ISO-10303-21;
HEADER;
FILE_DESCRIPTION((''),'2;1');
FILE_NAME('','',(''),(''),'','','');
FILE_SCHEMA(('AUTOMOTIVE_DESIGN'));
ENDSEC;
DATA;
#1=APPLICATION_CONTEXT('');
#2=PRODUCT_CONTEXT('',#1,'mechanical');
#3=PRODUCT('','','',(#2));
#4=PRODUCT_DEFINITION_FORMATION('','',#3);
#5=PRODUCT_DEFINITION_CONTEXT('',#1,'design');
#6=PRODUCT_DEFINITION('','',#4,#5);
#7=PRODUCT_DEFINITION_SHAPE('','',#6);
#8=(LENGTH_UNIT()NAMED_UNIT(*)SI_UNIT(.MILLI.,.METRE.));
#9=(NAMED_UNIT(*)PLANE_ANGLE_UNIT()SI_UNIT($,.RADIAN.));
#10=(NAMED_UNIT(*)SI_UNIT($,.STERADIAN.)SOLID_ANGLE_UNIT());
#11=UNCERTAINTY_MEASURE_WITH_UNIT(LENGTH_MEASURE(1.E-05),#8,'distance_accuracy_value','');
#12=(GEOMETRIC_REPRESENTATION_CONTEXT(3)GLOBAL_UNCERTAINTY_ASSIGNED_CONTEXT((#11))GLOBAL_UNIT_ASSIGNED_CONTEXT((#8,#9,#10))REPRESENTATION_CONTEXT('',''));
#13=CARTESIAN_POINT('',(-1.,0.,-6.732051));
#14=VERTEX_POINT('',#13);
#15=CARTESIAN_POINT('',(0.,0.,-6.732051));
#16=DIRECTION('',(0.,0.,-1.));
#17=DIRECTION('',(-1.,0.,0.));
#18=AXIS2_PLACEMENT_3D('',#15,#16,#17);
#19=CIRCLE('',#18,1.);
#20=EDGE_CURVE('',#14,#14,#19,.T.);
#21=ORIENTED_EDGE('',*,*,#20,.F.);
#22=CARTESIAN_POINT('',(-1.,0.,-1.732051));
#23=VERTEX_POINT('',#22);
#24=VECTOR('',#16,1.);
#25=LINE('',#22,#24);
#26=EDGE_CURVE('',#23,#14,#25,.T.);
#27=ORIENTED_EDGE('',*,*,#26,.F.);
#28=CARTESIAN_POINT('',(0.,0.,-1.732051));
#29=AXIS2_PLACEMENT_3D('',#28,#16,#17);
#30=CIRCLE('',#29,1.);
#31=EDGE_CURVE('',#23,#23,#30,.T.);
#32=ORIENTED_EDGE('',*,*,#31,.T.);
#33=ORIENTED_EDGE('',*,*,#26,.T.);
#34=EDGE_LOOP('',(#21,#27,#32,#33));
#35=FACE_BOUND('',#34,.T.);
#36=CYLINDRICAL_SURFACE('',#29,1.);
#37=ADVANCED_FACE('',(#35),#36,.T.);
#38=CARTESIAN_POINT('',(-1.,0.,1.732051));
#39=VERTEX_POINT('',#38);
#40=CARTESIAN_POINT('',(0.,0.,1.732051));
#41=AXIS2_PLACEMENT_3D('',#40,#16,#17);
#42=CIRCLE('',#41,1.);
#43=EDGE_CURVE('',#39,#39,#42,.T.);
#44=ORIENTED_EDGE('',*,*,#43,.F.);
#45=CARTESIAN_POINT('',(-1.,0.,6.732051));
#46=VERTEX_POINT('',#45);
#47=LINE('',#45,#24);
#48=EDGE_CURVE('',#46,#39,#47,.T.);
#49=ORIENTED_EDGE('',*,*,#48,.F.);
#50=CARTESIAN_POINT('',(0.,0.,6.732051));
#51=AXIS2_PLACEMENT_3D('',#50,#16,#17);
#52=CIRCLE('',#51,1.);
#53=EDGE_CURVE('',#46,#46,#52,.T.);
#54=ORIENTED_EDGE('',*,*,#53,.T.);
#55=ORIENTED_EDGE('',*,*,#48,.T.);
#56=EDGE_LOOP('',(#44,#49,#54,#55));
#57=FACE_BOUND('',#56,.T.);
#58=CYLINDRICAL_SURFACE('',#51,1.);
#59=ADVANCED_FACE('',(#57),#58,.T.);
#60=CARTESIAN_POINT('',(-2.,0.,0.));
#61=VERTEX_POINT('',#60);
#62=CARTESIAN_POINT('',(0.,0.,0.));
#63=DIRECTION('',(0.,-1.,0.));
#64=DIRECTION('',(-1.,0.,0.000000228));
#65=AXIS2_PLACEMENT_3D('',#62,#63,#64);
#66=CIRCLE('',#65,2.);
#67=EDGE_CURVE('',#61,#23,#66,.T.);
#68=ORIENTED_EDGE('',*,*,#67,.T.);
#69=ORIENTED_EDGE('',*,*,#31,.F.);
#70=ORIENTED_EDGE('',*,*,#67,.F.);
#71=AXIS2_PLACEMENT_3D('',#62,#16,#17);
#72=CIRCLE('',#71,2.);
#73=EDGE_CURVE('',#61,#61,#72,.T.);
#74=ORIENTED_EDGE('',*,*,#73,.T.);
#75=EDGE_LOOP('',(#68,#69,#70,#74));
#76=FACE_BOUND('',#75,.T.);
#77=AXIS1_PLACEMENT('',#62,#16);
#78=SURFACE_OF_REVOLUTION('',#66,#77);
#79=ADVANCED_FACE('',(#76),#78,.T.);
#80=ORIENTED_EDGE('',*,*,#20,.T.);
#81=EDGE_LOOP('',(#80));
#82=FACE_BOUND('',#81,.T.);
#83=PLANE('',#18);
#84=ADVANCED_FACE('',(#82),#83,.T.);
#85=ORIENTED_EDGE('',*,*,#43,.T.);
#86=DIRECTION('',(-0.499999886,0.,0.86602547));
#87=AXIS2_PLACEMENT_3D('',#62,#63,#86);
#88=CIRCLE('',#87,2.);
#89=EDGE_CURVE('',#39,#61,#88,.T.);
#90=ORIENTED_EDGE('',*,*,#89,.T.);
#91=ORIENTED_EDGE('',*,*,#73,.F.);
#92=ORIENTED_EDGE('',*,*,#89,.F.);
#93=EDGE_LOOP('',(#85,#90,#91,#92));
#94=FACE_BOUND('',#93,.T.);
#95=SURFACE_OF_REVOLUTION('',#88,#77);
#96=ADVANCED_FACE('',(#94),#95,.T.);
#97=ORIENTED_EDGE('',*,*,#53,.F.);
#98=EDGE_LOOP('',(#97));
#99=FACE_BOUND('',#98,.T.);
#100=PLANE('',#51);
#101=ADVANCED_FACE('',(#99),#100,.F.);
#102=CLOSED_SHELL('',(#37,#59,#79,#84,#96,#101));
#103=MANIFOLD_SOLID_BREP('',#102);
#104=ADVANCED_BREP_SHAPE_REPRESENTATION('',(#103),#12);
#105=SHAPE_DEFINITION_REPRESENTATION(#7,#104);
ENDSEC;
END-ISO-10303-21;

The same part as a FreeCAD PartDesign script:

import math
import FreeCAD as App
import Part
import Sketcher
from FreeCAD import Vector

doc = App.newDocument("Part")
body = doc.addObject("PartDesign::Body", "Body")

# Sketch on XZ plane
sketch1 = doc.addObject("Sketcher::SketchObject", "Sketch")
body.addObject(sketch1)
sketch1.AttachmentSupport = (doc.XZ_Plane, [""])
sketch1.MapMode = "FlatFace"
sketch1.addGeometry([
    Part.ArcOfCircle(Part.Circle(Vector(0, 0, 0), Vector(0, 0, 1), 2), math.radians(120), math.radians(180)),  # 0
    Part.ArcOfCircle(Part.Circle(Vector(0, 0, 0), Vector(0, 0, 1), 2), math.radians(180), math.radians(240)),  # 1
    Part.LineSegment(Vector(-1, -1.7, 0), Vector(-1, -6.7, 0)),  # 2
    Part.LineSegment(Vector(-1, -6.7, 0), Vector(0, -6.7, 0)),  # 3
    Part.LineSegment(Vector(0, -6.7, 0), Vector(0, 6.7, 0)),  # 4
    Part.LineSegment(Vector(0, 6.7, 0), Vector(-1, 6.7, 0)),  # 5
    Part.LineSegment(Vector(-1, 6.7, 0), Vector(-1, 1.7, 0)),  # 6
], False)
sketch1.addConstraint([
    Sketcher.Constraint("Tangent", 0, 2, 1, 1),
    Sketcher.Constraint("Coincident", 1, 2, 2, 1),
    Sketcher.Constraint("Coincident", 2, 2, 3, 1),
    Sketcher.Constraint("Coincident", 3, 2, 4, 1),
    Sketcher.Constraint("Coincident", 4, 2, 5, 1),
    Sketcher.Constraint("Coincident", 5, 2, 6, 1),
    Sketcher.Constraint("Coincident", 6, 2, 0, 1),
    Sketcher.Constraint("Vertical", 2),
    Sketcher.Constraint("Horizontal", 3),
    Sketcher.Constraint("Vertical", 4),
    Sketcher.Constraint("Horizontal", 5),
    Sketcher.Constraint("Vertical", 6),
    Sketcher.Constraint("Coincident", 0, 3, -1, 1),
    Sketcher.Constraint("Equal", 0, 1),
    Sketcher.Constraint("Symmetric", 3, 2, 4, 2, -1, 1),
    Sketcher.Constraint("PointOnObject", 0, 2, -1),
    Sketcher.Constraint("Vertical", 2, 2, 5, 2),
    Sketcher.Constraint("Radius", 0, 2.0),
    Sketcher.Constraint("DistanceX", 3, 1, 3, 2, 1.0),
    Sketcher.Constraint("DistanceY", 2, 2, 2, 1, 5.0),
])
revolution = doc.addObject("PartDesign::Revolution", "Revolution")
body.addObject(revolution)
revolution.Profile = sketch1
revolution.ReferenceAxis = (sketch1, ["V_Axis"])
revolution.Angle = 360

doc.recompute()
